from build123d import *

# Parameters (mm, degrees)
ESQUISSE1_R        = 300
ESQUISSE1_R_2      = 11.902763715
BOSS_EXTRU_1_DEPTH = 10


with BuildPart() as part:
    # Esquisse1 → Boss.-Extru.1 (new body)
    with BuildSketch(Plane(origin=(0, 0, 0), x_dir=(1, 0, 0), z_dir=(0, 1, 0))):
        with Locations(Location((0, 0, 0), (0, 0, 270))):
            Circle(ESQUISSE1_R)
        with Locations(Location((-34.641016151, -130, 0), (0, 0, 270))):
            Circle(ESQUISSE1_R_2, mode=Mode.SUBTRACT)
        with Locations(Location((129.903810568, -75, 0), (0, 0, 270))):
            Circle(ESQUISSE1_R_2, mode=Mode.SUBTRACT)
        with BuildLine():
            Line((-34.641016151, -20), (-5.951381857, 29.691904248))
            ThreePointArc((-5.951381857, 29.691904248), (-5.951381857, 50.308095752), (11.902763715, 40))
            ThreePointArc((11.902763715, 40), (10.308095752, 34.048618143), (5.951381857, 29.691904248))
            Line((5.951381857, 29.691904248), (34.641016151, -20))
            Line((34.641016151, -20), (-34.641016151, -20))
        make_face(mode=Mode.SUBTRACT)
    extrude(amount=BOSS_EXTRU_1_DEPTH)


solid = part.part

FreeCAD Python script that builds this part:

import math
import FreeCAD as App
import Part
import Sketcher
from FreeCAD import Vector
Q = App.Units.Quantity

doc = App.newDocument("Part")
body = doc.addObject("PartDesign::Body", "Body")

sketch1 = body.newObject("Sketcher::SketchObject", "Sketch")
sketch1.AttachmentSupport = (doc.getObject("XZ_Plane"), [""])
sketch1.MapMode = "FlatFace"
sketch1.addGeometry(Part.Circle(Vector(0, 0, 0), Vector(0, 0, 1), 300), False)
sketch1.addGeometry(Part.LineSegment(Vector(35, 20, 0), Vector(-35, 20, 0)), False)
sketch1.addGeometry(Part.LineSegment(Vector(-35, 20, 0), Vector(-6, -30, 0)), False)
sketch1.addGeometry(Part.ArcOfCircle(Part.Circle(Vector(0, -40, 0), Vector(0, 0, 1), 12), math.radians(120), math.radians(360)), False)
sketch1.addGeometry(Part.ArcOfCircle(Part.Circle(Vector(0, -40, 0), Vector(0, 0, 1), 12), math.radians(0), math.radians(60)), False)
sketch1.addGeometry(Part.LineSegment(Vector(6, -30, 0), Vector(35, 20, 0)), False)
sketch1.addGeometry(Part.Circle(Vector(-35, 130, 0), Vector(0, 0, 1), 12), False)
sketch1.addGeometry(Part.Circle(Vector(130, 75, 0), Vector(0, 0, 1), 12), False)
sketch1.addConstraint(Sketcher.Constraint("Coincident", 1, 2, 2, 1))
sketch1.addConstraint(Sketcher.Constraint("Coincident", 2, 2, 3, 1))
sketch1.addConstraint(Sketcher.Constraint("Tangent", 3, 2, 4, 1))
sketch1.addConstraint(Sketcher.Constraint("Coincident", 4, 2, 5, 1))
sketch1.addConstraint(Sketcher.Constraint("Coincident", 5, 2, 1, 1))
sketch1.addConstraint(Sketcher.Constraint("Horizontal", 1))
sketch1.addConstraint(Sketcher.Constraint("Coincident", 0, 3, -1, 1))
sketch1.addConstraint(Sketcher.Constraint("Equal", 3, 4))
sketch1.addConstraint(Sketcher.Constraint("Equal", 4, 6))
sketch1.addConstraint(Sketcher.Constraint("Equal", 6, 7))
sketch1.addConstraint(Sketcher.Constraint("Symmetric", 2, 2, 4, 2, -2))
sketch1.addConstraint(Sketcher.Constraint("Horizontal", 4, 3, 3, 2))
sketch1.addConstraint(Sketcher.Constraint("Vertical", 6, 3, 1, 2))
sketch1.addConstraint(Sketcher.Constraint("Equal", 2, 5))
sketch1.addConstraint(Sketcher.Constraint("Diameter", 0, 600.0))
sketch1.addConstraint(Sketcher.Constraint("Angle", 2, Q("-60 deg")))
sketch1.addConstraint(Sketcher.Constraint("DistanceY", 3, 3, -1, 1, 40.0))
sketch1.addConstraint(Sketcher.Constraint("DistanceY", -1, 1, 6, 3, 130.0))
sketch1.addConstraint(Sketcher.Constraint("DistanceY", -1, 1, 7, 3, 75.0))
sketch1.addConstraint(Sketcher.Constraint("DistanceY", -1, 1, 1, 2, 20.0))
sketch1.addConstraint(Sketcher.Constraint("Diameter", 6, 23.805527))
sketch1.addConstraint(Sketcher.Constraint("DistanceX", 2, 2, 5, 2, 40.592398))
sketch1.addConstraint(Sketcher.Constraint("DistanceX", -1, 1, 7, 3, 129.903811))
pad1 = body.newObject("PartDesign::Pad", "Pad")
pad1.Profile = sketch1
pad1.Length = 10
pad1.Reversed = True

doc.recompute()
